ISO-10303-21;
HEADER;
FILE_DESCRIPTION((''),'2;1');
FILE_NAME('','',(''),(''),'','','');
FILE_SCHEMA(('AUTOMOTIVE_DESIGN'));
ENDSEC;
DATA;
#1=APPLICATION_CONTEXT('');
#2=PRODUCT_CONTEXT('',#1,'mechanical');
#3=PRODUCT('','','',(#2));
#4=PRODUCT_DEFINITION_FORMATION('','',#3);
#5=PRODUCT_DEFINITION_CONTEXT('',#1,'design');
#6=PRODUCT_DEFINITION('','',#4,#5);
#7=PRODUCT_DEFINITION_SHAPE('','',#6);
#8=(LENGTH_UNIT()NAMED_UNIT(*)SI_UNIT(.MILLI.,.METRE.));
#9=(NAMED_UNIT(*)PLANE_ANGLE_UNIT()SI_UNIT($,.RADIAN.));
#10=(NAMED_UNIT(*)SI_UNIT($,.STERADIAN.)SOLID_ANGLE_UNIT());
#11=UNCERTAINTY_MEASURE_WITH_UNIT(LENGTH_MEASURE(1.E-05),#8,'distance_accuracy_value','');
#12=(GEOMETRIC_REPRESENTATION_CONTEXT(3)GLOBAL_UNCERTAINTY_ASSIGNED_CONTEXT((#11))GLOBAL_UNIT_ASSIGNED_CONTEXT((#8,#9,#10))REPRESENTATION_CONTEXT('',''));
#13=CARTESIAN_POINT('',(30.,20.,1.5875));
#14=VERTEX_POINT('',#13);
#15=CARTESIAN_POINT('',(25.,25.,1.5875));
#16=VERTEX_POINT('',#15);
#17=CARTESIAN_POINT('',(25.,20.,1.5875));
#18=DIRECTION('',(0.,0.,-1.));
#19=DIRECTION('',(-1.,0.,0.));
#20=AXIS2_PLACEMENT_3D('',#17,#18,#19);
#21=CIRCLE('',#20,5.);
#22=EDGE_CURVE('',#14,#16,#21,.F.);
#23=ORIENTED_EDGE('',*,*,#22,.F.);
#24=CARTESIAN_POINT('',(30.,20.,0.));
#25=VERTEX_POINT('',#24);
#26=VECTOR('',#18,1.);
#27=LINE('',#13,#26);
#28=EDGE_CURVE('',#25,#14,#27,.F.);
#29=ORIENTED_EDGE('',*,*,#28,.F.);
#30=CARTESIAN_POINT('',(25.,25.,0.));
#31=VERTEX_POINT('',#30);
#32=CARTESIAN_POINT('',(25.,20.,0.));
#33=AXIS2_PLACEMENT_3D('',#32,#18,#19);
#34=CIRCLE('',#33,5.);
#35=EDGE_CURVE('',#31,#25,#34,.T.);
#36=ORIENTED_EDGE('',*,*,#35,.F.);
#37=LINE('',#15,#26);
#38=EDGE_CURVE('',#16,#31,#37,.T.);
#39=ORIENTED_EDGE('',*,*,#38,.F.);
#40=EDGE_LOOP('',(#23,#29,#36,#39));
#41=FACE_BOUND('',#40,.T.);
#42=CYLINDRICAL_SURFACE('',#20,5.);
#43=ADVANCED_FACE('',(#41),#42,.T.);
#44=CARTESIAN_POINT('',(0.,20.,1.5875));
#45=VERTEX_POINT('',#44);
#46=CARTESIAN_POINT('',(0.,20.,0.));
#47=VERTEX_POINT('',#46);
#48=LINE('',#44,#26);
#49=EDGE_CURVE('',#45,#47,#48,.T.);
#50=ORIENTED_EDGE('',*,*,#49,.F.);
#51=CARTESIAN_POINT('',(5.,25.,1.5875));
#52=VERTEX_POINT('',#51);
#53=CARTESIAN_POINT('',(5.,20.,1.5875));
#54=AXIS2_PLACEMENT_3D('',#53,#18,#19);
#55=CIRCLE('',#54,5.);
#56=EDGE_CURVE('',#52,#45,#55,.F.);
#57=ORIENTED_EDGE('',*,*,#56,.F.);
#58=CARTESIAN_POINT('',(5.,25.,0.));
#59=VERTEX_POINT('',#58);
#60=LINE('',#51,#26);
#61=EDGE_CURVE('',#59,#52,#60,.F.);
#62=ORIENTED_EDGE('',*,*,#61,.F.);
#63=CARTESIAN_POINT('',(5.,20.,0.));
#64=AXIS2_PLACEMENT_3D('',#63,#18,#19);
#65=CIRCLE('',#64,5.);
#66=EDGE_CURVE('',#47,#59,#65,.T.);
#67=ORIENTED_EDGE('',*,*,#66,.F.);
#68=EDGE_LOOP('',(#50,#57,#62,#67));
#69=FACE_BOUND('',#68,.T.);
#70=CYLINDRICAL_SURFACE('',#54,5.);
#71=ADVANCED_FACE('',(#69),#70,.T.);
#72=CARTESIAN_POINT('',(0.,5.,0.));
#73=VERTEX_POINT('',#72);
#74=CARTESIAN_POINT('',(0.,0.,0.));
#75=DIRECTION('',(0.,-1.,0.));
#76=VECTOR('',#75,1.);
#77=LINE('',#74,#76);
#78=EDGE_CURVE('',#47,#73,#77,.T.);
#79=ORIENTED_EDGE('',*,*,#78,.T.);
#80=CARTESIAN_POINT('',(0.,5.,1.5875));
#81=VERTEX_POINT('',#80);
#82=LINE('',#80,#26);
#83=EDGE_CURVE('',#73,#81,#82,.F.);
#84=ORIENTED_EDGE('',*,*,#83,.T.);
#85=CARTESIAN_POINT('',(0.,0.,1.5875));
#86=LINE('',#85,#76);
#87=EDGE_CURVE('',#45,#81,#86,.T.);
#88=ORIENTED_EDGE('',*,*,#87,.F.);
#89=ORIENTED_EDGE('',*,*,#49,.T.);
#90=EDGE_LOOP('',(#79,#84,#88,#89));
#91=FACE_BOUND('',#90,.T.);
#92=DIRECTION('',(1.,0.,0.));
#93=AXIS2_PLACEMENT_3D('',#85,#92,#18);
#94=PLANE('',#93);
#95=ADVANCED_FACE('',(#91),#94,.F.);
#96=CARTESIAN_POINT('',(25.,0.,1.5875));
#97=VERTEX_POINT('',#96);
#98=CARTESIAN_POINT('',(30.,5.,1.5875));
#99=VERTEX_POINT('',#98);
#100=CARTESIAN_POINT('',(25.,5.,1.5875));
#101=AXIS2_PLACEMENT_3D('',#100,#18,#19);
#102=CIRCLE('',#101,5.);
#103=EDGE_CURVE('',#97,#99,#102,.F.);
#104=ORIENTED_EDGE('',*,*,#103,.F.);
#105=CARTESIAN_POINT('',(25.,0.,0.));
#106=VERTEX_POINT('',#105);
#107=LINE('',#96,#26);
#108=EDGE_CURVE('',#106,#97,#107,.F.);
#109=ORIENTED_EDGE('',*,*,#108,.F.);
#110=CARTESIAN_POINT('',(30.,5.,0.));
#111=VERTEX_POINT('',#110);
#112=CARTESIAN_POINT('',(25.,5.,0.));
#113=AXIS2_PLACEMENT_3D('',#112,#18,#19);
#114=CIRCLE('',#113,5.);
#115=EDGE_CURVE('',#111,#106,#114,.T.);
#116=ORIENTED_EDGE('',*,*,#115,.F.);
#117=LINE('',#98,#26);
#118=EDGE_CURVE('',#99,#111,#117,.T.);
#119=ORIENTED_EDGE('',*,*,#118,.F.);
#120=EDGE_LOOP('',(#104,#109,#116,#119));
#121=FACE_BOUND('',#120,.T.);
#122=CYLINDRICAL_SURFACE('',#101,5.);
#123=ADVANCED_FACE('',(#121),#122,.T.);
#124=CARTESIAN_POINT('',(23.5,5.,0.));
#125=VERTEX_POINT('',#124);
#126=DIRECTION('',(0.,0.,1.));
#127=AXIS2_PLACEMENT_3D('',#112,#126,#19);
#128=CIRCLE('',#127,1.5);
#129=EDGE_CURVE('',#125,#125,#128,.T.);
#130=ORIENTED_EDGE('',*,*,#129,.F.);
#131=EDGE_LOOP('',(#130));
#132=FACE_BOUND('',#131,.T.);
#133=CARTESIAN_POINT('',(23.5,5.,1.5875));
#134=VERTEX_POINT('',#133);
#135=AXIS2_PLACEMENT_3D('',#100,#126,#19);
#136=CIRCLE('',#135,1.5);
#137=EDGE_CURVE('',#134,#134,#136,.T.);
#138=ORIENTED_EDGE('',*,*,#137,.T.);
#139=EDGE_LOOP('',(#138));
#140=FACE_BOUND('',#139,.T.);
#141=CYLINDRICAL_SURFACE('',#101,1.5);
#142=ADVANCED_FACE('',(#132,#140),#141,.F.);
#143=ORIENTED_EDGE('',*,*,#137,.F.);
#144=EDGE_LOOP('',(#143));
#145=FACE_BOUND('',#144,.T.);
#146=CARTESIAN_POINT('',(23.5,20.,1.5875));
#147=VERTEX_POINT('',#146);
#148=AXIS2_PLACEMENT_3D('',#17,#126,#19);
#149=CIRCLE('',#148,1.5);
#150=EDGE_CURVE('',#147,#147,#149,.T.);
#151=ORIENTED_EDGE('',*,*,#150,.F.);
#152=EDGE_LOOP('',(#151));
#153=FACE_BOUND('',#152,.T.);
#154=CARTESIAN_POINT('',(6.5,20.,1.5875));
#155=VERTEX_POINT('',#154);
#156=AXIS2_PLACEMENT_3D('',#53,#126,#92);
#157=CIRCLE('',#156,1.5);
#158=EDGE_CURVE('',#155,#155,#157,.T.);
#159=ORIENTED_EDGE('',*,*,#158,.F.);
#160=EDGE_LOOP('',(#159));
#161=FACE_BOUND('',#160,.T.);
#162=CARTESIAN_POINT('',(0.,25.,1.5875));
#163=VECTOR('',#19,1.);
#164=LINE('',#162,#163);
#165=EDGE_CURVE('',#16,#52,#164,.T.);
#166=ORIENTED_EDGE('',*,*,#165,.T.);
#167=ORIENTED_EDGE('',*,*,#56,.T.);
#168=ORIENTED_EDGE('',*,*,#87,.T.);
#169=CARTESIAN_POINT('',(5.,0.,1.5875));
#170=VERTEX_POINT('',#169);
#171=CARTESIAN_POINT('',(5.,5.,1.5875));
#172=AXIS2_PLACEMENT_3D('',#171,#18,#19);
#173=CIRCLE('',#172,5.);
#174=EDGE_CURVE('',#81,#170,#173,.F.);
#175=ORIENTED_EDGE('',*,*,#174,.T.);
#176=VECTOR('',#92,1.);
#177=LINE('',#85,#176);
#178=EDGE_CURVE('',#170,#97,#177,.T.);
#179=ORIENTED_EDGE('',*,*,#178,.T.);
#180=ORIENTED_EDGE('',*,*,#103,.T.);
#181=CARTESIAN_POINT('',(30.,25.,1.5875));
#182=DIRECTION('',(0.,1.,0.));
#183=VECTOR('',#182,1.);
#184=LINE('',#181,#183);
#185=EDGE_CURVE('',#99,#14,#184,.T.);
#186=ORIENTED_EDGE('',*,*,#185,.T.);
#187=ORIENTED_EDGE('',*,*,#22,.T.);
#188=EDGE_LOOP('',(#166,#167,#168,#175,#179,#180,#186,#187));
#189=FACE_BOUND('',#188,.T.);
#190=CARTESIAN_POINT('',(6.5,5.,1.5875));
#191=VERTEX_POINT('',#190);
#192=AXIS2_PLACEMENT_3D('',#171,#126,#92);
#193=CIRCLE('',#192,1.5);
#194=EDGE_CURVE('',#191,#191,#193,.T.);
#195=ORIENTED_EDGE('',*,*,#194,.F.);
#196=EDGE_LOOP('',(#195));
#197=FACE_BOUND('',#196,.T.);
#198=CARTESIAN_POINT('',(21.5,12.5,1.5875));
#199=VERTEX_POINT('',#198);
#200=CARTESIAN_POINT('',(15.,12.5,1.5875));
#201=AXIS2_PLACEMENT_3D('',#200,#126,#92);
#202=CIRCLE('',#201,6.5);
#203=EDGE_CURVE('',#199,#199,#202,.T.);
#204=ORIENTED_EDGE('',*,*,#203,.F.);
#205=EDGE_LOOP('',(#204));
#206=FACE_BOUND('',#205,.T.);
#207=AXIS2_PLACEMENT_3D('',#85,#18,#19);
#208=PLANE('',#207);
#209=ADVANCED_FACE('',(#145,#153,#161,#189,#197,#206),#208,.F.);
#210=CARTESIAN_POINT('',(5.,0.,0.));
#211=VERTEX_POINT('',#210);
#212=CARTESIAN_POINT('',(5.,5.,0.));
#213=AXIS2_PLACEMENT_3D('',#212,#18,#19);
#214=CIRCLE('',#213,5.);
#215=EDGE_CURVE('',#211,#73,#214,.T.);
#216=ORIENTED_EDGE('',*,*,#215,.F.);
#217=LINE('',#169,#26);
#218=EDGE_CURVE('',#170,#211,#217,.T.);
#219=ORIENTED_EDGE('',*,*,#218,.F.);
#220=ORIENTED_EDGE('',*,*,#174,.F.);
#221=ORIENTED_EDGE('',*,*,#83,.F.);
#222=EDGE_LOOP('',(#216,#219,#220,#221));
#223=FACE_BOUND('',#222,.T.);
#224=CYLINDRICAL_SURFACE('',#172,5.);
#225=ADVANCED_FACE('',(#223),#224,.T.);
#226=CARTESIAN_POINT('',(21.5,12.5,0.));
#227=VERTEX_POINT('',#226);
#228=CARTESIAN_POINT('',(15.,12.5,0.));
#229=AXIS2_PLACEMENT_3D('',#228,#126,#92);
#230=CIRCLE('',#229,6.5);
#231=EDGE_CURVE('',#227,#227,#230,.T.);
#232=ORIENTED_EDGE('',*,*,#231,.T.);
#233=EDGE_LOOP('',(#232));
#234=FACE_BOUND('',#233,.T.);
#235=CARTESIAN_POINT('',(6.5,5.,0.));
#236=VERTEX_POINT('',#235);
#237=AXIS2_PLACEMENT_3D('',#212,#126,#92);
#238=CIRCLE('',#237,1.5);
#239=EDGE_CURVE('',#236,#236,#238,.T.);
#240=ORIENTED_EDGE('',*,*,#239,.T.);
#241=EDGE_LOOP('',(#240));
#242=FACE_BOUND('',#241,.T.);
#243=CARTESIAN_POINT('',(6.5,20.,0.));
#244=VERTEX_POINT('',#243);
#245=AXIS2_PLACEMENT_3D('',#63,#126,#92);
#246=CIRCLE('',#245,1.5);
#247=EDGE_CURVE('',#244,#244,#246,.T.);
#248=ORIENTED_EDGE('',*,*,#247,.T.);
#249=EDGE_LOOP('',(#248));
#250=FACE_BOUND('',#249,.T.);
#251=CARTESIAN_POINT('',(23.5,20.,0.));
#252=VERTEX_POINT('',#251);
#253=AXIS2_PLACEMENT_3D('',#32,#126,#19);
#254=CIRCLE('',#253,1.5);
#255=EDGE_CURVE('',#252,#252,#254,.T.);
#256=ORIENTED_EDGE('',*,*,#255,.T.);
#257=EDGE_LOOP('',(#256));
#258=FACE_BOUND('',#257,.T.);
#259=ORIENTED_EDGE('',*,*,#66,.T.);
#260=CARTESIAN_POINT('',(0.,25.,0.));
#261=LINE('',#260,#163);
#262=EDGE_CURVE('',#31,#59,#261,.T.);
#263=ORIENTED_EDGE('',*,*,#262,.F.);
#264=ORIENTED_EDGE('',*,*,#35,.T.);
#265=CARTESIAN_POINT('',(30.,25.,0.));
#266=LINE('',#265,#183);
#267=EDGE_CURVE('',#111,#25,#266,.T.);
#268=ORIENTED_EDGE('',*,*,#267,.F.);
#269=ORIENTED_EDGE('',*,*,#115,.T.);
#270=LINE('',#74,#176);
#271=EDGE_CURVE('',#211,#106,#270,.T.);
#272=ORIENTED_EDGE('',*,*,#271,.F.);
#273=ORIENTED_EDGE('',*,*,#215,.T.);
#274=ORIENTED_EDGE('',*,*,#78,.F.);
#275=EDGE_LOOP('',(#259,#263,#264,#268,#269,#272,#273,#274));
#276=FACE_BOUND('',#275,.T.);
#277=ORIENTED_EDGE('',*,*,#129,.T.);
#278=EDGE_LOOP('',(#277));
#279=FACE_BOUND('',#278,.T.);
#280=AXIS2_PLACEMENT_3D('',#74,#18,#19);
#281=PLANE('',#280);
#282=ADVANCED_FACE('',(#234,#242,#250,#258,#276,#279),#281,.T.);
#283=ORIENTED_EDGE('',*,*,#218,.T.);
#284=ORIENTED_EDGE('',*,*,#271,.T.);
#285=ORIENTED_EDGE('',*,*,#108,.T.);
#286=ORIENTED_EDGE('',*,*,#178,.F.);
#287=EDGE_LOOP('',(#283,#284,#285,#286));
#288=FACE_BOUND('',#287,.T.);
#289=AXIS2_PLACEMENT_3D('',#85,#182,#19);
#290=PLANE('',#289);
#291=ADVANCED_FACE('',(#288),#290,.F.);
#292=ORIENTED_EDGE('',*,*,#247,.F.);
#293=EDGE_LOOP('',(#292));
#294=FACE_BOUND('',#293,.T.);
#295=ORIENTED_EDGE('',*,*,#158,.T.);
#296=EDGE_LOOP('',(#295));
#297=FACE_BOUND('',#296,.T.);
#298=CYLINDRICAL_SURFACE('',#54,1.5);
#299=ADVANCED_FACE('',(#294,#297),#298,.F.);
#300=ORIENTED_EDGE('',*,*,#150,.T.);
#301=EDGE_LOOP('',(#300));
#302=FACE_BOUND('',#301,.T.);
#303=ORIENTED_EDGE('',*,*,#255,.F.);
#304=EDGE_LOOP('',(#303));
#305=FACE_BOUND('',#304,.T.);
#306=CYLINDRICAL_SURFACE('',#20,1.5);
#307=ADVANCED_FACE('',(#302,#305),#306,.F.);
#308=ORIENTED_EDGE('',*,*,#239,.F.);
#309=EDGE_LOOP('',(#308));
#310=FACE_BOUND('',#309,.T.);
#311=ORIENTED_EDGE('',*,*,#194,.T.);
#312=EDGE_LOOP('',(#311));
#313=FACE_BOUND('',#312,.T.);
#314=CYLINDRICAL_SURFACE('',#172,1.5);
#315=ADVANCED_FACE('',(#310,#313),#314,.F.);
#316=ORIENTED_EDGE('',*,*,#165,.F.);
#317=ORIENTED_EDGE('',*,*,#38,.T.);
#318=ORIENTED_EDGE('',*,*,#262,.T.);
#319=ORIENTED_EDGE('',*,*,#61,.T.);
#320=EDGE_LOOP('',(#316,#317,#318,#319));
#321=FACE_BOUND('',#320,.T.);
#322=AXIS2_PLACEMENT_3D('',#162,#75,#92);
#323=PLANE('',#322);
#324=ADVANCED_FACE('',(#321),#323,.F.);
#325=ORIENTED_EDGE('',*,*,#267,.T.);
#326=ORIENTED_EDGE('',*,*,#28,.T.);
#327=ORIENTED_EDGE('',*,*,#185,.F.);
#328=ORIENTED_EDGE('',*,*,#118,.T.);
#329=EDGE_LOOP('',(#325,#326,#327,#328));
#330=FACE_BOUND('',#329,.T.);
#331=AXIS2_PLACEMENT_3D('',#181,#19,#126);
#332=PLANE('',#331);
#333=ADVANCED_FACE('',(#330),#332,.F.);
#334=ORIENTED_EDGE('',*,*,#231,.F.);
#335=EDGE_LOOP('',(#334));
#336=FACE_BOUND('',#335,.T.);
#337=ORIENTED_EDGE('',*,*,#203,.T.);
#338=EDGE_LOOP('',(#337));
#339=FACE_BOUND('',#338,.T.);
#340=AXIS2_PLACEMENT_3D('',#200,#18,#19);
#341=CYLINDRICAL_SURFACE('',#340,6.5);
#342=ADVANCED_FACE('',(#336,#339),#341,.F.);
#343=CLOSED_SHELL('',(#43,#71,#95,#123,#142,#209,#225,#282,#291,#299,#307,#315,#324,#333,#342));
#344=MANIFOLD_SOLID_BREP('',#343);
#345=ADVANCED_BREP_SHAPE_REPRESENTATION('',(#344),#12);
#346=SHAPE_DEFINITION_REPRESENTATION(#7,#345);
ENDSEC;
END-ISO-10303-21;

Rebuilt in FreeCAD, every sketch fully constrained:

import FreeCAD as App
import Part
import Sketcher
from FreeCAD import Vector


def edges_at(feature, points):
    """Names of the edges that pass closest to the given points."""
    edges = feature.Shape.Edges
    near = lambda p: min(range(len(edges)), key=lambda i: edges[i].distToShape(Part.Vertex(*p))[0])
    return sorted({f"Edge{near(p) + 1}" for p in points})


def add_polygon(sketch, points):
    """Adds a closed chain of lines whose ends are joined by coincident constraints."""
    first, n = sketch.GeometryCount, len(points)
    for a, b in zip(points, points[1:] + points[:1]):
        sketch.addGeometry(Part.LineSegment(App.Vector(*a, 0), App.Vector(*b, 0)), False)
    for i in range(n):
        sketch.addConstraint(Sketcher.Constraint("Coincident", first + i, 2, first + (i + 1) % n, 1))

doc = App.newDocument("Part")
body = doc.addObject("PartDesign::Body", "Body")

sketch1 = body.newObject("Sketcher::SketchObject", "Sketch")
sketch1.AttachmentSupport = (doc.getObject("XY_Plane"), [""])
sketch1.MapMode = "FlatFace"
add_polygon(sketch1, [(0, 25), (0, 0), (30, 0), (30, 25)])
sketch1.addGeometry(Part.Circle(Vector(5, 5, 0), Vector(0, 0, 1), 1.5), False)
sketch1.addGeometry(Part.Circle(Vector(25, 5, 0), Vector(0, 0, 1), 1.5), False)
sketch1.addGeometry(Part.Circle(Vector(5, 20, 0), Vector(0, 0, 1), 1.5), False)
sketch1.addGeometry(Part.Circle(Vector(15, 12.5, 0), Vector(0, 0, 1), 6.5), False)
sketch1.addGeometry(Part.Circle(Vector(25, 20, 0), Vector(0, 0, 1), 1.5), False)
sketch1.addConstraint(Sketcher.Constraint("Vertical", 0))
sketch1.addConstraint(Sketcher.Constraint("Horizontal", 1))
sketch1.addConstraint(Sketcher.Constraint("Vertical", 2))
sketch1.addConstraint(Sketcher.Constraint("Horizontal", 3))
sketch1.addConstraint(Sketcher.Constraint("Coincident", 0, 2, -1, 1))
sketch1.addConstraint(Sketcher.Constraint("Equal", 4, 5))
sketch1.addConstraint(Sketcher.Constraint("Equal", 5, 6))
sketch1.addConstraint(Sketcher.Constraint("Equal", 6, 8))
sketch1.addConstraint(Sketcher.Constraint("Horizontal", 4, 3, 5, 3))
sketch1.addConstraint(Sketcher.Constraint("Horizontal", 6, 3, 8, 3))
sketch1.addConstraint(Sketcher.Constraint("Vertical", 4, 3, 6, 3))
sketch1.addConstraint(Sketcher.Constraint("Vertical", 5, 3, 8, 3))
sketch1.addConstraint(Sketcher.Constraint("Diameter", 4, 3.0))
sketch1.addConstraint(Sketcher.Constraint("Diameter", 7, 13.0))
sketch1.addConstraint(Sketcher.Constraint("DistanceX", 1, 1, 1, 2, 30.0))
sketch1.addConstraint(Sketcher.Constraint("DistanceY", 0, 2, 0, 1, 25.0))
sketch1.addConstraint(Sketcher.Constraint("DistanceX", -1, 1, 4, 3, 5.0))
sketch1.addConstraint(Sketcher.Constraint("DistanceY", -1, 1, 4, 3, 5.0))
sketch1.addConstraint(Sketcher.Constraint("DistanceX", -1, 1, 5, 3, 25.0))
sketch1.addConstraint(Sketcher.Constraint("DistanceY", -1, 1, 6, 3, 20.0))
sketch1.addConstraint(Sketcher.Constraint("DistanceX", -1, 1, 7, 3, 15.0))
sketch1.addConstraint(Sketcher.Constraint("DistanceY", -1, 1, 7, 3, 12.5))
pad1 = body.newObject("PartDesign::Pad", "Pad")
pad1.Profile = sketch1
pad1.Length = 1.5875
doc.recompute()

fillet = body.newObject("PartDesign::Fillet", "Fillet")
fillet.Base = (pad1, edges_at(pad1, [
    (0, 0, 0.794),
    (0, 25, 0.794),
    (30, 25, 0.794),
    (30, 0, 0.794),
]))
fillet.Radius = 5

doc.recompute()
